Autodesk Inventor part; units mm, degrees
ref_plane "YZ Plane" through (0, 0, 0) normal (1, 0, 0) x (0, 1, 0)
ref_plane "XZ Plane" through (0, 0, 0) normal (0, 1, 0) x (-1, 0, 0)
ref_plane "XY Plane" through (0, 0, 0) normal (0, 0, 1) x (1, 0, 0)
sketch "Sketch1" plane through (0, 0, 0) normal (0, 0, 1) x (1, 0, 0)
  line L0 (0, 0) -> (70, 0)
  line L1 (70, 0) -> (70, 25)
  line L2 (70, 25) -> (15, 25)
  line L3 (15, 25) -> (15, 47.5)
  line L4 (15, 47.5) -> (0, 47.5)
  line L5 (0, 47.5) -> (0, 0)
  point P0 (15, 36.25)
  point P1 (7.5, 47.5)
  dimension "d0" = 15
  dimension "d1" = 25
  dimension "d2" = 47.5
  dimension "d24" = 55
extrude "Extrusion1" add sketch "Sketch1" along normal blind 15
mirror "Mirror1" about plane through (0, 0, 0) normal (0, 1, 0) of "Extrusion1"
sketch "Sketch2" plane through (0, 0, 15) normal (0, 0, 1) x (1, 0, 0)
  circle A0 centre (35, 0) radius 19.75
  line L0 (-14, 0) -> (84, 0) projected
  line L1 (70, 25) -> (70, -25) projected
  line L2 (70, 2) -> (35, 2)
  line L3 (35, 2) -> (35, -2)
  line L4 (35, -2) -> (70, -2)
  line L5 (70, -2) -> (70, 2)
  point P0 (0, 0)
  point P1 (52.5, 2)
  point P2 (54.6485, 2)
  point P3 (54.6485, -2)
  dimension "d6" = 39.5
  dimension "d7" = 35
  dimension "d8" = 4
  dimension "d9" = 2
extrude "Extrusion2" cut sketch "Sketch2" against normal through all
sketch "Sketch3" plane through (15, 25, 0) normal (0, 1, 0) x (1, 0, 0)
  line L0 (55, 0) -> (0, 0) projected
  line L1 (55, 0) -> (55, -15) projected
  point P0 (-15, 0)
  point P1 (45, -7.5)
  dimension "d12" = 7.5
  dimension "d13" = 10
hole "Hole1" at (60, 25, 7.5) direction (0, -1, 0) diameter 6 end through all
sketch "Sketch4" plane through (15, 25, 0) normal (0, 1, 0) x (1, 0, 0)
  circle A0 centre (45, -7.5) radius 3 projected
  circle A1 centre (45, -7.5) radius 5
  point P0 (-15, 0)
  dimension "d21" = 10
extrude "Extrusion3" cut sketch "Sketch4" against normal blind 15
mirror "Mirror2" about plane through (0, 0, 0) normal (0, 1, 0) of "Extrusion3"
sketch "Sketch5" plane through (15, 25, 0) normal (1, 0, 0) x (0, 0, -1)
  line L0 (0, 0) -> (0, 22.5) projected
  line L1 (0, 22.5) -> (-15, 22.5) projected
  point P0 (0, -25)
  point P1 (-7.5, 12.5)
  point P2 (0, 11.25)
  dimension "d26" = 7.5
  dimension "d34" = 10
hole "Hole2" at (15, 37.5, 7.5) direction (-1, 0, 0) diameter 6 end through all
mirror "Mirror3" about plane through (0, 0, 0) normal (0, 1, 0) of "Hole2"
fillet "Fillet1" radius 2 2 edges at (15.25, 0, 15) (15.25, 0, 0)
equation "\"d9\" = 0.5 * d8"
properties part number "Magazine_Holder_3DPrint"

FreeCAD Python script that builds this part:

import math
import FreeCAD as App
import Part
import Sketcher
Q = App.Units.Quantity


def edges_at(feature, points):
    """Names of the edges that pass closest to the given points."""
    edges = feature.Shape.Edges
    near = lambda p: min(range(len(edges)), key=lambda i: edges[i].distToShape(Part.Vertex(*p))[0])
    return sorted({f"Edge{near(p) + 1}" for p in points})

doc = App.newDocument("Part")
params = doc.addObject("Spreadsheet::Sheet", "Params")
for row, (alias, value) in enumerate([
    ("sketch1_width", "55 mm"),
    ("sketch1_width2", "15 mm"),
    ("sketch1_height", "25 mm"),
    ("sketch1_height2", "47.5 mm"),
    ("pad1_length", "15 mm"),
    ("sketch2_height", "4 mm"),
    ("sketch2_radius", "19.75 mm"),
    ("sketch3_diameter", "6 mm"),
    ("hole_diameter", "6 mm"),
    ("sketch4_diameter", "10 mm"),
    ("sketch4_diameter2", "6 mm"),
    ("pocket2_length", "15 mm"),
    ("sketch5_diameter", "6 mm"),
    ("hole2_diameter", "6 mm"),
    ("fillet_radius", "2 mm"),
], start=1):
    params.set(f"A{row}", alias)
    params.set(f"B{row}", "=" + value)
    params.setAlias(f"B{row}", alias)

body = doc.addObject("PartDesign::Body", "Body")

# Sketch on XY plane
sketch1 = doc.addObject("Sketcher::SketchObject", "Sketch")
body.addObject(sketch1)
sketch1.AttachmentSupport = (doc.XY_Plane, [""])
sketch1.MapMode = "FlatFace"
sketch1.addGeometry(Part.LineSegment(App.Vector(0, 48, 0), App.Vector(0, 0, 0)), False)
sketch1.addGeometry(Part.LineSegment(App.Vector(0, 0, 0), App.Vector(70, 0, 0)), False)
sketch1.addGeometry(Part.LineSegment(App.Vector(70, 0, 0), App.Vector(70, 25, 0)), False)
sketch1.addGeometry(Part.LineSegment(App.Vector(70, 25, 0), App.Vector(15, 25, 0)), False)
sketch1.addGeometry(Part.LineSegment(App.Vector(15, 25, 0), App.Vector(15, 48, 0)), False)
sketch1.addGeometry(Part.LineSegment(App.Vector(15, 48, 0), App.Vector(0, 48, 0)), False)
sketch1.addConstraint(Sketcher.Constraint("Coincident", 0, 2, 1, 1))
sketch1.addConstraint(Sketcher.Constraint("Coincident", 1, 2, 2, 1))
sketch1.addConstraint(Sketcher.Constraint("Coincident", 2, 2, 3, 1))
sketch1.addConstraint(Sketcher.Constraint("Coincident", 3, 2, 4, 1))
sketch1.addConstraint(Sketcher.Constraint("Coincident", 4, 2, 5, 1))
sketch1.addConstraint(Sketcher.Constraint("Coincident", 5, 2, 0, 1))
sketch1.addConstraint(Sketcher.Constraint("Vertical", 0))
sketch1.addConstraint(Sketcher.Constraint("Horizontal", 1))
sketch1.addConstraint(Sketcher.Constraint("Vertical", 2))
sketch1.addConstraint(Sketcher.Constraint("Horizontal", 3))
sketch1.addConstraint(Sketcher.Constraint("Vertical", 4))
sketch1.addConstraint(Sketcher.Constraint("Horizontal", 5))
sketch1.addConstraint(Sketcher.Constraint("Coincident", 0, 2, -1, 1))
sketch1.addConstraint(Sketcher.Constraint("DistanceX", 3, 2, 3, 1, Q("55 mm")))
sketch1.addConstraint(Sketcher.Constraint("DistanceX", 5, 2, 5, 1, Q("15 mm")))
sketch1.addConstraint(Sketcher.Constraint("DistanceY", 2, 1, 2, 2, Q("25 mm")))
sketch1.addConstraint(Sketcher.Constraint("DistanceY", 0, 2, 0, 1, Q("47.5 mm")))
sketch1.setExpression("Constraints[13]", "Params.sketch1_width")
sketch1.setExpression("Constraints[14]", "Params.sketch1_width2")
sketch1.setExpression("Constraints[15]", "Params.sketch1_height")
sketch1.setExpression("Constraints[16]", "Params.sketch1_height2")
pad1 = doc.addObject("PartDesign::Pad", "Pad")
body.addObject(pad1)
pad1.Profile = sketch1
pad1.setExpression("Length", "Params.pad1_length")
doc.recompute()

mirrored = doc.addObject("PartDesign::Mirrored", "Mirrored")
body.addObject(mirrored)
mirrored.Originals = [pad1]
mirrored.MirrorPlane = (doc.XZ_Plane, [""])
body.Tip = mirrored

# Sketch on XY plane
sketch2 = doc.addObject("Sketcher::SketchObject", "Sketch001")
body.addObject(sketch2)
sketch2.AttachmentSupport = (doc.XY_Plane, [""])
sketch2.MapMode = "FlatFace"
sketch2.AttachmentOffset = App.Placement(App.Vector(0, 0, 15), App.Rotation())
sketch2.addGeometry(Part.ArcOfCircle(Part.Circle(App.Vector(35, 0, 0), App.Vector(0, 0, 1), 19.8), math.radians(6), math.radians(354)), False)
sketch2.addGeometry(Part.LineSegment(App.Vector(54.6, -2, 0), App.Vector(70, -2, 0)), False)
sketch2.addGeometry(Part.LineSegment(App.Vector(70, -2, 0), App.Vector(70, 2, 0)), False)
sketch2.addGeometry(Part.LineSegment(App.Vector(70, 2, 0), App.Vector(54.6, 2, 0)), False)
sketch2.addConstraint(Sketcher.Constraint("Coincident", 0, 2, 1, 1))
sketch2.addConstraint(Sketcher.Constraint("Coincident", 1, 2, 2, 1))
sketch2.addConstraint(Sketcher.Constraint("Coincident", 2, 2, 3, 1))
sketch2.addConstraint(Sketcher.Constraint("Coincident", 3, 2, 0, 1))
sketch2.addConstraint(Sketcher.Constraint("Horizontal", 1))
sketch2.addConstraint(Sketcher.Constraint("Vertical", 2))
sketch2.addConstraint(Sketcher.Constraint("Horizontal", 3))
sketch2.addConstraint(Sketcher.Constraint("Symmetric", 0, 2, 3, 2, -1))
sketch2.addConstraint(Sketcher.Constraint("DistanceY", 2, 1, 2, 2, Q("4 mm")))
sketch2.addConstraint(Sketcher.Constraint("Radius", 0, Q("19.75 mm")))
sketch2.addConstraint(Sketcher.Constraint("DistanceX", -1, 1, 0, 3, Q("35 mm")))
sketch2.addConstraint(Sketcher.Constraint("DistanceX", 0, 3, 1, 2, Q("35 mm")))
sketch2.setExpression("Constraints[8]", "Params.sketch2_height")
sketch2.setExpression("Constraints[9]", "Params.sketch2_radius")
pocket1 = doc.addObject("PartDesign::Pocket", "Pocket")
body.addObject(pocket1)
pocket1.Profile = sketch2
pocket1.Type = "ThroughAll"

# Sketch on XZ plane
sketch3 = doc.addObject("Sketcher::SketchObject", "Sketch002")
body.addObject(sketch3)
sketch3.AttachmentSupport = (doc.XZ_Plane, [""])
sketch3.MapMode = "FlatFace"
sketch3.AttachmentOffset = App.Placement(App.Vector(0, 0, -25), App.Rotation())
sketch3.addGeometry(Part.Circle(App.Vector(60, 7.5, 0), App.Vector(0, 0, 1), 3), False)
sketch3.addConstraint(Sketcher.Constraint("Diameter", 0, Q("6 mm")))
sketch3.addConstraint(Sketcher.Constraint("DistanceX", -1, 1, 0, 3, Q("60 mm")))
sketch3.addConstraint(Sketcher.Constraint("DistanceY", -1, 1, 0, 3, Q("7.5 mm")))
sketch3.setExpression("Constraints[0]", "Params.sketch3_diameter")
doc.recompute()
hole = doc.addObject("PartDesign::Hole", "Hole")
body.addObject(hole)
hole.Profile = sketch3
hole.ThreadType = "None"
hole.setExpression("Diameter", "Params.hole_diameter")
hole.DepthType = "ThroughAll"
hole.Reversed = True

# Sketch on XZ plane
sketch4 = doc.addObject("Sketcher::SketchObject", "Sketch003")
body.addObject(sketch4)
sketch4.AttachmentSupport = (doc.XZ_Plane, [""])
sketch4.MapMode = "FlatFace"
sketch4.AttachmentOffset = App.Placement(App.Vector(0, 0, -25), App.Rotation())
sketch4.addGeometry(Part.Circle(App.Vector(60, 7.5, 0), App.Vector(0, 0, 1), 5), False)
sketch4.addGeometry(Part.Circle(App.Vector(60, 7.5, 0), App.Vector(0, 0, 1), 3), False)
sketch4.addConstraint(Sketcher.Constraint("Coincident", 1, 3, 0, 3))
sketch4.addConstraint(Sketcher.Constraint("Diameter", 0, Q("10 mm")))
sketch4.addConstraint(Sketcher.Constraint("Diameter", 1, Q("6 mm")))
sketch4.addConstraint(Sketcher.Constraint("DistanceX", -1, 1, 0, 3, Q("60 mm")))
sketch4.addConstraint(Sketcher.Constraint("DistanceY", -1, 1, 0, 3, Q("7.5 mm")))
sketch4.setExpression("Constraints[1]", "Params.sketch4_diameter")
sketch4.setExpression("Constraints[2]", "Params.sketch4_diameter2")
pocket2 = doc.addObject("PartDesign::Pocket", "Pocket001")
body.addObject(pocket2)
pocket2.Profile = sketch4
pocket2.setExpression("Length", "Params.pocket2_length")
pocket2.Reversed = True
doc.recompute()

mirrored2 = doc.addObject("PartDesign::Mirrored", "Mirrored001")
body.addObject(mirrored2)
mirrored2.Originals = [pocket2]
mirrored2.MirrorPlane = (doc.XZ_Plane, [""])
body.Tip = mirrored2

# Sketch on YZ plane
sketch5 = doc.addObject("Sketcher::SketchObject", "Sketch004")
body.addObject(sketch5)
sketch5.AttachmentSupport = (doc.YZ_Plane, [""])
sketch5.MapMode = "FlatFace"
sketch5.AttachmentOffset = App.Placement(App.Vector(0, 0, 15), App.Rotation())
sketch5.addGeometry(Part.Circle(App.Vector(37.5, 7.5, 0), App.Vector(0, 0, 1), 3), False)
sketch5.addConstraint(Sketcher.Constraint("Diameter", 0, Q("6 mm")))
sketch5.addConstraint(Sketcher.Constraint("DistanceX", -1, 1, 0, 3, Q("37.5 mm")))
sketch5.addConstraint(Sketcher.Constraint("DistanceY", -1, 1, 0, 3, Q("7.5 mm")))
sketch5.setExpression("Constraints[0]", "Params.sketch5_diameter")
doc.recompute()
hole2 = doc.addObject("PartDesign::Hole", "Hole001")
body.addObject(hole2)
hole2.Profile = sketch5
hole2.ThreadType = "None"
hole2.setExpression("Diameter", "Params.hole2_diameter")
hole2.DepthType = "ThroughAll"
doc.recompute()

mirrored3 = doc.addObject("PartDesign::Mirrored", "Mirrored002")
body.addObject(mirrored3)
mirrored3.Originals = [hole2]
mirrored3.MirrorPlane = (doc.XZ_Plane, [""])
body.Tip = mirrored3
doc.recompute()

fillet = doc.addObject("PartDesign::Fillet", "Fillet")
body.addObject(fillet)
fillet.Base = (mirrored3, edges_at(mirrored3, [(15.25, 0, 15), (15.25, 0, 0)]))
fillet.setExpression("Radius", "Params.fillet_radius")

doc.recompute()
